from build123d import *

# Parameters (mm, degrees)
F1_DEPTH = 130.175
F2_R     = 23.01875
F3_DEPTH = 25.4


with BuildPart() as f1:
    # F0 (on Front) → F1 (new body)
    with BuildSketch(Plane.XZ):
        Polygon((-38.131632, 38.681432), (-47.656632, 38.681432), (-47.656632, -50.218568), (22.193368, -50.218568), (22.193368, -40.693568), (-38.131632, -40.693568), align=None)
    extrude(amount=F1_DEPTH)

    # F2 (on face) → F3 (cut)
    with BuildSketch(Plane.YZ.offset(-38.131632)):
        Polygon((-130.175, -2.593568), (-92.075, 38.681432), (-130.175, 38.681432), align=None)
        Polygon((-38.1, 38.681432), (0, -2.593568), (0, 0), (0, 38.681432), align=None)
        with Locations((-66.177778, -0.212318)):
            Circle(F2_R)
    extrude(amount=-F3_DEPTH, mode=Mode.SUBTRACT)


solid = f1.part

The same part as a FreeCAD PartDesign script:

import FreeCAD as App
import Part
import Sketcher
from FreeCAD import Vector
Q = App.Units.Quantity

doc = App.newDocument("Part")
body = doc.addObject("PartDesign::Body", "Body")

# Sketch on XZ plane
sketch1 = body.newObject("Sketcher::SketchObject", "Sketch")
sketch1.AttachmentSupport = (doc.getObject("XZ_Plane"), [""])
sketch1.MapMode = "FlatFace"
sketch1.addGeometry([
    Part.LineSegment(Vector(-38, 39, 0), Vector(-48, 39, 0)),  # 0
    Part.LineSegment(Vector(-48, 39, 0), Vector(-48, -50, 0)),  # 1
    Part.LineSegment(Vector(-48, -50, 0), Vector(22, -50, 0)),  # 2
    Part.LineSegment(Vector(22, -50, 0), Vector(22, -41, 0)),  # 3
    Part.LineSegment(Vector(22, -41, 0), Vector(-38, -41, 0)),  # 4
    Part.LineSegment(Vector(-38, -41, 0), Vector(-38, 39, 0)),  # 5
], False)
sketch1.addConstraint([
    Sketcher.Constraint("Coincident", 0, 2, 1, 1),
    Sketcher.Constraint("Coincident", 1, 2, 2, 1),
    Sketcher.Constraint("Coincident", 2, 2, 3, 1),
    Sketcher.Constraint("Coincident", 3, 2, 4, 1),
    Sketcher.Constraint("Coincident", 4, 2, 5, 1),
    Sketcher.Constraint("Coincident", 5, 2, 0, 1),
    Sketcher.Constraint("Horizontal", 0),
    Sketcher.Constraint("Vertical", 1),
    Sketcher.Constraint("Horizontal", 2),
    Sketcher.Constraint("Vertical", 3),
    Sketcher.Constraint("Horizontal", 4),
    Sketcher.Constraint("Vertical", 5),
    Sketcher.Constraint("Equal", 0, 3),
    Sketcher.Constraint("DistanceY", 1, 2, 1, 1, Q("3.5 in")),
    Sketcher.Constraint("DistanceX", 2, 1, 2, 2, Q("2.75 in")),
    Sketcher.Constraint("DistanceX", 0, 2, 0, 1, Q("0.375 in")),
    Sketcher.Constraint("DistanceX", 0, 2, -1, 1, 47.656632),
    Sketcher.Constraint("DistanceY", -1, 1, 0, 2, 38.681432),
])
pad1 = body.newObject("PartDesign::Pad", "Pad")
pad1.Profile = sketch1
pad1.Length = Q("5.125 in")

# Sketch on YZ plane
sketch2 = body.newObject("Sketcher::SketchObject", "Sketch001")
sketch2.AttachmentSupport = (doc.getObject("YZ_Plane"), [""])
sketch2.MapMode = "FlatFace"
sketch2.AttachmentOffset = App.Placement(Vector(0, 0, -38.131632), App.Rotation())
sketch2.addGeometry([
    Part.LineSegment(Vector(-130, -3, 0), Vector(-92, 39, 0)),  # 0
    Part.LineSegment(Vector(-92, 39, 0), Vector(-130, 39, 0)),  # 1
    Part.LineSegment(Vector(-130, 39, 0), Vector(-130, -3, 0)),  # 2
    Part.LineSegment(Vector(-38, 39, 0), Vector(0, -3, 0)),  # 3
    Part.LineSegment(Vector(0, -3, 0), Vector(0, 39, 0)),  # 4
    Part.LineSegment(Vector(0, 39, 0), Vector(-38, 39, 0)),  # 5
    Part.Circle(Vector(-66, 0, 0), Vector(0, 0, 1), 23),  # 6
], False)
sketch2.addConstraint([
    Sketcher.Constraint("Coincident", 0, 2, 1, 1),
    Sketcher.Constraint("Coincident", 1, 2, 2, 1),
    Sketcher.Constraint("Coincident", 2, 2, 0, 1),
    Sketcher.Constraint("Coincident", 3, 2, 4, 1),
    Sketcher.Constraint("Coincident", 4, 2, 5, 1),
    Sketcher.Constraint("Coincident", 5, 2, 3, 1),
    Sketcher.Constraint("Horizontal", 1),
    Sketcher.Constraint("Vertical", 2),
    Sketcher.Constraint("Vertical", 4),
    Sketcher.Constraint("Horizontal", 5),
    Sketcher.Constraint("PointOnObject", 3, 2, -2),
    Sketcher.Constraint("Horizontal", 2, 2, 3, 2),
    Sketcher.Constraint("Horizontal", 1, 2, 4, 2),
    Sketcher.Constraint("Equal", 1, 5),
    Sketcher.Constraint("Diameter", 6, Q("1.8125 in")),
    Sketcher.Constraint("DistanceX", 1, 2, 1, 1, Q("1.5 in")),
    Sketcher.Constraint("DistanceY", 2, 2, 2, 1, Q("1.625 in")),
    Sketcher.Constraint("DistanceX", 0, 2, -1, 1, Q("3.625 in")),
    Sketcher.Constraint("DistanceY", 6, 3, 0, 2, Q("1.53125 in")),
    Sketcher.Constraint("DistanceX", 6, 3, -1, 1, 66.177778),
    Sketcher.Constraint("DistanceY", 6, 3, -1, 1, 0.212318),
])
pocket1 = body.newObject("PartDesign::Pocket", "Pocket")
pocket1.Profile = sketch2
pocket1.Length = Q("1 in")

doc.recompute()
